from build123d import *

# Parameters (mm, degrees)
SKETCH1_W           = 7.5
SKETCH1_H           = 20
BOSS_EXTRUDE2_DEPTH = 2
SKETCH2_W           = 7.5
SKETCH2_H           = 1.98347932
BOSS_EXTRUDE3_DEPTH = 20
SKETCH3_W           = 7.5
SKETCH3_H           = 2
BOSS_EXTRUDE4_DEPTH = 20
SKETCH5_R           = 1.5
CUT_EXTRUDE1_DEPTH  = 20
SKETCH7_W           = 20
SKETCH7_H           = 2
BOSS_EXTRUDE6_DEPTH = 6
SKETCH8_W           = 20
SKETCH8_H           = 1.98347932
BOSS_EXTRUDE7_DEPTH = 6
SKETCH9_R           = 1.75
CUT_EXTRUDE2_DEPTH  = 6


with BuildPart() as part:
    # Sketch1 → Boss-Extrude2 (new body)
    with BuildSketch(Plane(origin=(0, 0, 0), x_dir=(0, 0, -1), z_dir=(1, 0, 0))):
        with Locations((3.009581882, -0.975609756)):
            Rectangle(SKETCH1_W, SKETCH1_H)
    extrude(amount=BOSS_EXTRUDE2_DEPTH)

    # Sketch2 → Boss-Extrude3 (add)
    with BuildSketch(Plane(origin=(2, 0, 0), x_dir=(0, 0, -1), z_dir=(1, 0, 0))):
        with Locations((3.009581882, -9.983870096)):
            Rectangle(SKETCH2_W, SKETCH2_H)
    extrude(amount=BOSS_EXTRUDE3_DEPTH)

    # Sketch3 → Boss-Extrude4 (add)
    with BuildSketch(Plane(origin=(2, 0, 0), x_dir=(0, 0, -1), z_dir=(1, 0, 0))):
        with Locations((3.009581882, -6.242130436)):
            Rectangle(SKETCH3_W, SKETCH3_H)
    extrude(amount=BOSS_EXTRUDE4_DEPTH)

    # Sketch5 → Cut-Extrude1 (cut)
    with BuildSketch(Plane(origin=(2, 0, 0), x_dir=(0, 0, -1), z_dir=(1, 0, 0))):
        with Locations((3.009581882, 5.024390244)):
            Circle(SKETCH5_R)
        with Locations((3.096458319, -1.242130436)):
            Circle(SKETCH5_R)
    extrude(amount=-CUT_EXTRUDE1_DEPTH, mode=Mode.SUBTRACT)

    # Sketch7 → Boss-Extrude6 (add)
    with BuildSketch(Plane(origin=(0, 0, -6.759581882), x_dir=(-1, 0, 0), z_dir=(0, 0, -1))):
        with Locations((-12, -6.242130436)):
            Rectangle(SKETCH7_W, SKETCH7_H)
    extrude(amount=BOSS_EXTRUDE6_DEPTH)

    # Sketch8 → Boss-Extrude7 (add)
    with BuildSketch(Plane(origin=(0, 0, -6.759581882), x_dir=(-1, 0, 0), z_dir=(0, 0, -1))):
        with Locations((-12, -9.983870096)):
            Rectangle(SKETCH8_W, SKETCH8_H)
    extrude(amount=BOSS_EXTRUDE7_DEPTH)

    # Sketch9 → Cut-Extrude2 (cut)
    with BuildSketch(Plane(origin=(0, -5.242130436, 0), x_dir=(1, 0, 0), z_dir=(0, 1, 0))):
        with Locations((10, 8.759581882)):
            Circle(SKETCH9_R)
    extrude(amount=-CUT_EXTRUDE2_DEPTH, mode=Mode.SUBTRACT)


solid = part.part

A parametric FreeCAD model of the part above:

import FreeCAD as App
import Part
import Sketcher
from FreeCAD import Vector

doc = App.newDocument("Part")
body = doc.addObject("PartDesign::Body", "Body")

sketch1 = body.newObject("Sketcher::SketchObject", "Sketch")
sketch1.AttachmentSupport = (doc.getObject("YZ_Plane"), [""])
sketch1.MapMode = "FlatFace"
sketch1.addGeometry(Part.LineSegment(Vector(9, 1, 0), Vector(-11, 1, 0)), False)
sketch1.addGeometry(Part.LineSegment(Vector(-11, 1, 0), Vector(-11, -7, 0)), False)
sketch1.addGeometry(Part.LineSegment(Vector(-11, -7, 0), Vector(9, -7, 0)), False)
sketch1.addGeometry(Part.LineSegment(Vector(9, -7, 0), Vector(9, 1, 0)), False)
sketch1.addConstraint(Sketcher.Constraint("Coincident", 0, 2, 1, 1))
sketch1.addConstraint(Sketcher.Constraint("Coincident", 1, 2, 2, 1))
sketch1.addConstraint(Sketcher.Constraint("Coincident", 2, 2, 3, 1))
sketch1.addConstraint(Sketcher.Constraint("Coincident", 3, 2, 0, 1))
sketch1.addConstraint(Sketcher.Constraint("Horizontal", 0))
sketch1.addConstraint(Sketcher.Constraint("Vertical", 1))
sketch1.addConstraint(Sketcher.Constraint("Horizontal", 2))
sketch1.addConstraint(Sketcher.Constraint("Vertical", 3))
sketch1.addConstraint(Sketcher.Constraint("DistanceX", 0, 2, 0, 1, 20.0))
sketch1.addConstraint(Sketcher.Constraint("DistanceY", 1, 2, 1, 1, 7.5))
sketch1.addConstraint(Sketcher.Constraint("DistanceX", 0, 2, -1, 1, 10.97561))
sketch1.addConstraint(Sketcher.Constraint("DistanceY", -1, 1, 0, 2, 0.740418))
pad1 = body.newObject("PartDesign::Pad", "Pad")
pad1.Profile = sketch1
pad1.Length = 2

sketch2 = body.newObject("Sketcher::SketchObject", "Sketch001")
sketch2.AttachmentSupport = (doc.getObject("YZ_Plane"), [""])
sketch2.MapMode = "FlatFace"
sketch2.AttachmentOffset = App.Placement(Vector(0, 0, 2), App.Rotation())
sketch2.addGeometry(Part.LineSegment(Vector(-9, 0.7, 0), Vector(-11, 0.7, 0)), False)
sketch2.addGeometry(Part.LineSegment(Vector(-11, 0.7, 0), Vector(-11, -6.8, 0)), False)
sketch2.addGeometry(Part.LineSegment(Vector(-11, -6.8, 0), Vector(-9, -6.8, 0)), False)
sketch2.addGeometry(Part.LineSegment(Vector(-9, -6.8, 0), Vector(-9, 0.7, 0)), False)
sketch2.addConstraint(Sketcher.Constraint("Coincident", 0, 2, 1, 1))
sketch2.addConstraint(Sketcher.Constraint("Coincident", 1, 2, 2, 1))
sketch2.addConstraint(Sketcher.Constraint("Coincident", 2, 2, 3, 1))
sketch2.addConstraint(Sketcher.Constraint("Coincident", 3, 2, 0, 1))
sketch2.addConstraint(Sketcher.Constraint("Horizontal", 0))
sketch2.addConstraint(Sketcher.Constraint("Vertical", 1))
sketch2.addConstraint(Sketcher.Constraint("Horizontal", 2))
sketch2.addConstraint(Sketcher.Constraint("Vertical", 3))
sketch2.addConstraint(Sketcher.Constraint("DistanceY", 1, 2, 1, 1, 7.5))
sketch2.addConstraint(Sketcher.Constraint("DistanceX", 0, 2, 0, 1, 1.983479))
sketch2.addConstraint(Sketcher.Constraint("DistanceX", 0, 2, -1, 1, 10.97561))
sketch2.addConstraint(Sketcher.Constraint("DistanceY", -1, 1, 0, 2, 0.740418))
pad2 = body.newObject("PartDesign::Pad", "Pad001")
pad2.Profile = sketch2
pad2.Length = 20

sketch3 = body.newObject("Sketcher::SketchObject", "Sketch002")
sketch3.AttachmentSupport = (doc.getObject("YZ_Plane"), [""])
sketch3.MapMode = "FlatFace"
sketch3.AttachmentOffset = App.Placement(Vector(0, 0, 2), App.Rotation())
sketch3.addGeometry(Part.LineSegment(Vector(-5.2, 0.7, 0), Vector(-7.2, 0.7, 0)), False)
sketch3.addGeometry(Part.LineSegment(Vector(-7.2, 0.7, 0), Vector(-7.2, -6.8, 0)), False)
sketch3.addGeometry(Part.LineSegment(Vector(-7.2, -6.8, 0), Vector(-5.2, -6.8, 0)), False)
sketch3.addGeometry(Part.LineSegment(Vector(-5.2, -6.8, 0), Vector(-5.2, 0.7, 0)), False)
sketch3.addConstraint(Sketcher.Constraint("Coincident", 0, 2, 1, 1))
sketch3.addConstraint(Sketcher.Constraint("Coincident", 1, 2, 2, 1))
sketch3.addConstraint(Sketcher.Constraint("Coincident", 2, 2, 3, 1))
sketch3.addConstraint(Sketcher.Constraint("Coincident", 3, 2, 0, 1))
sketch3.addConstraint(Sketcher.Constraint("Horizontal", 0))
sketch3.addConstraint(Sketcher.Constraint("Vertical", 1))
sketch3.addConstraint(Sketcher.Constraint("Horizontal", 2))
sketch3.addConstraint(Sketcher.Constraint("Vertical", 3))
sketch3.addConstraint(Sketcher.Constraint("DistanceX", 0, 2, 0, 1, 2.0))
sketch3.addConstraint(Sketcher.Constraint("DistanceY", 1, 2, 1, 1, 7.5))
sketch3.addConstraint(Sketcher.Constraint("DistanceX", 0, 2, -1, 1, 7.24213))
sketch3.addConstraint(Sketcher.Constraint("DistanceY", -1, 1, 0, 2, 0.740418))
pad3 = body.newObject("PartDesign::Pad", "Pad002")
pad3.Profile = sketch3
pad3.Length = 20

sketch4 = body.newObject("Sketcher::SketchObject", "Sketch003")
sketch4.AttachmentSupport = (doc.getObject("YZ_Plane"), [""])
sketch4.MapMode = "FlatFace"
sketch4.AttachmentOffset = App.Placement(Vector(0, 0, 2), App.Rotation())
sketch4.addGeometry(Part.Circle(Vector(5, -3, 0), Vector(0, 0, 1), 1.5), False)
sketch4.addGeometry(Part.Circle(Vector(-1.2, -3.1, 0), Vector(0, 0, 1), 1.5), False)
sketch4.addConstraint(Sketcher.Constraint("Equal", 0, 1))
sketch4.addConstraint(Sketcher.Constraint("Diameter", 0, 3.0))
sketch4.addConstraint(Sketcher.Constraint("DistanceX", -1, 1, 0, 3, 5.02439))
sketch4.addConstraint(Sketcher.Constraint("DistanceY", 0, 3, -1, 1, 3.009582))
sketch4.addConstraint(Sketcher.Constraint("DistanceX", 1, 3, -1, 1, 1.24213))
sketch4.addConstraint(Sketcher.Constraint("DistanceY", 1, 3, -1, 1, 3.096458))
pocket1 = body.newObject("PartDesign::Pocket", "Pocket")
pocket1.Profile = sketch4
pocket1.Length = 20

sketch5 = body.newObject("Sketcher::SketchObject", "Sketch004")
sketch5.AttachmentSupport = (doc.getObject("XY_Plane"), [""])
sketch5.MapMode = "FlatFace"
sketch5.AttachmentOffset = App.Placement(Vector(0, 0, -6.759582), App.Rotation())
sketch5.addGeometry(Part.LineSegment(Vector(22, -5.2, 0), Vector(22, -7.2, 0)), False)
sketch5.addGeometry(Part.LineSegment(Vector(22, -7.2, 0), Vector(2, -7.2, 0)), False)
sketch5.addGeometry(Part.LineSegment(Vector(2, -7.2, 0), Vector(2, -5.2, 0)), False)
sketch5.addGeometry(Part.LineSegment(Vector(2, -5.2, 0), Vector(22, -5.2, 0)), False)
sketch5.addConstraint(Sketcher.Constraint("Coincident", 0, 2, 1, 1))
sketch5.addConstraint(Sketcher.Constraint("Coincident", 1, 2, 2, 1))
sketch5.addConstraint(Sketcher.Constraint("Coincident", 2, 2, 3, 1))
sketch5.addConstraint(Sketcher.Constraint("Coincident", 3, 2, 0, 1))
sketch5.addConstraint(Sketcher.Constraint("Vertical", 0))
sketch5.addConstraint(Sketcher.Constraint("Horizontal", 1))
sketch5.addConstraint(Sketcher.Constraint("Vertical", 2))
sketch5.addConstraint(Sketcher.Constraint("Horizontal", 3))
sketch5.addConstraint(Sketcher.Constraint("DistanceX", 1, 2, 1, 1, 20.0))
sketch5.addConstraint(Sketcher.Constraint("DistanceY", 0, 2, 0, 1, 2.0))
sketch5.addConstraint(Sketcher.Constraint("DistanceX", -1, 1, 0, 2, 22.0))
sketch5.addConstraint(Sketcher.Constraint("DistanceY", 0, 2, -1, 1, 7.24213))
pad4 = body.newObject("PartDesign::Pad", "Pad003")
pad4.Profile = sketch5
pad4.Length = 6
pad4.Reversed = True

sketch6 = body.newObject("Sketcher::SketchObject", "Sketch005")
sketch6.AttachmentSupport = (doc.getObject("XY_Plane"), [""])
sketch6.MapMode = "FlatFace"
sketch6.AttachmentOffset = App.Placement(Vector(0, 0, -6.759582), App.Rotation())
sketch6.addGeometry(Part.LineSegment(Vector(22, -9, 0), Vector(22, -11, 0)), False)
sketch6.addGeometry(Part.LineSegment(Vector(22, -11, 0), Vector(2, -11, 0)), False)
sketch6.addGeometry(Part.LineSegment(Vector(2, -11, 0), Vector(2, -9, 0)), False)
sketch6.addGeometry(Part.LineSegment(Vector(2, -9, 0), Vector(22, -9, 0)), False)
sketch6.addConstraint(Sketcher.Constraint("Coincident", 0, 2, 1, 1))
sketch6.addConstraint(Sketcher.Constraint("Coincident", 1, 2, 2, 1))
sketch6.addConstraint(Sketcher.Constraint("Coincident", 2, 2, 3, 1))
sketch6.addConstraint(Sketcher.Constraint("Coincident", 3, 2, 0, 1))
sketch6.addConstraint(Sketcher.Constraint("Vertical", 0))
sketch6.addConstraint(Sketcher.Constraint("Horizontal", 1))
sketch6.addConstraint(Sketcher.Constraint("Vertical", 2))
sketch6.addConstraint(Sketcher.Constraint("Horizontal", 3))
sketch6.addConstraint(Sketcher.Constraint("DistanceX", 1, 2, 1, 1, 20.0))
sketch6.addConstraint(Sketcher.Constraint("DistanceX", -1, 1, 0, 2, 22.0))
sketch6.addConstraint(Sketcher.Constraint("DistanceY", 0, 2, 0, 1, 1.983479))
sketch6.addConstraint(Sketcher.Constraint("DistanceY", 0, 2, -1, 1, 10.97561))
pad5 = body.newObject("PartDesign::Pad", "Pad004")
pad5.Profile = sketch6
pad5.Length = 6
pad5.Reversed = True

sketch7 = body.newObject("Sketcher::SketchObject", "Sketch006")
sketch7.AttachmentSupport = (doc.getObject("XZ_Plane"), [""])
sketch7.MapMode = "FlatFace"
sketch7.AttachmentOffset = App.Placement(Vector(0, 0, 5.24213), App.Rotation())
sketch7.addGeometry(Part.Circle(Vector(10, -8.8, 0), Vector(0, 0, 1), 1.8), False)
sketch7.addConstraint(Sketcher.Constraint("Diameter", 0, 3.5))
sketch7.addConstraint(Sketcher.Constraint("DistanceX", -1, 1, 0, 3, 10.0))
sketch7.addConstraint(Sketcher.Constraint("DistanceY", 0, 3, -1, 1, 8.759582))
pocket2 = body.newObject("PartDesign::Pocket", "Pocket001")
pocket2.Profile = sketch7
pocket2.Length = 6
pocket2.Reversed = True

doc.recompute()
